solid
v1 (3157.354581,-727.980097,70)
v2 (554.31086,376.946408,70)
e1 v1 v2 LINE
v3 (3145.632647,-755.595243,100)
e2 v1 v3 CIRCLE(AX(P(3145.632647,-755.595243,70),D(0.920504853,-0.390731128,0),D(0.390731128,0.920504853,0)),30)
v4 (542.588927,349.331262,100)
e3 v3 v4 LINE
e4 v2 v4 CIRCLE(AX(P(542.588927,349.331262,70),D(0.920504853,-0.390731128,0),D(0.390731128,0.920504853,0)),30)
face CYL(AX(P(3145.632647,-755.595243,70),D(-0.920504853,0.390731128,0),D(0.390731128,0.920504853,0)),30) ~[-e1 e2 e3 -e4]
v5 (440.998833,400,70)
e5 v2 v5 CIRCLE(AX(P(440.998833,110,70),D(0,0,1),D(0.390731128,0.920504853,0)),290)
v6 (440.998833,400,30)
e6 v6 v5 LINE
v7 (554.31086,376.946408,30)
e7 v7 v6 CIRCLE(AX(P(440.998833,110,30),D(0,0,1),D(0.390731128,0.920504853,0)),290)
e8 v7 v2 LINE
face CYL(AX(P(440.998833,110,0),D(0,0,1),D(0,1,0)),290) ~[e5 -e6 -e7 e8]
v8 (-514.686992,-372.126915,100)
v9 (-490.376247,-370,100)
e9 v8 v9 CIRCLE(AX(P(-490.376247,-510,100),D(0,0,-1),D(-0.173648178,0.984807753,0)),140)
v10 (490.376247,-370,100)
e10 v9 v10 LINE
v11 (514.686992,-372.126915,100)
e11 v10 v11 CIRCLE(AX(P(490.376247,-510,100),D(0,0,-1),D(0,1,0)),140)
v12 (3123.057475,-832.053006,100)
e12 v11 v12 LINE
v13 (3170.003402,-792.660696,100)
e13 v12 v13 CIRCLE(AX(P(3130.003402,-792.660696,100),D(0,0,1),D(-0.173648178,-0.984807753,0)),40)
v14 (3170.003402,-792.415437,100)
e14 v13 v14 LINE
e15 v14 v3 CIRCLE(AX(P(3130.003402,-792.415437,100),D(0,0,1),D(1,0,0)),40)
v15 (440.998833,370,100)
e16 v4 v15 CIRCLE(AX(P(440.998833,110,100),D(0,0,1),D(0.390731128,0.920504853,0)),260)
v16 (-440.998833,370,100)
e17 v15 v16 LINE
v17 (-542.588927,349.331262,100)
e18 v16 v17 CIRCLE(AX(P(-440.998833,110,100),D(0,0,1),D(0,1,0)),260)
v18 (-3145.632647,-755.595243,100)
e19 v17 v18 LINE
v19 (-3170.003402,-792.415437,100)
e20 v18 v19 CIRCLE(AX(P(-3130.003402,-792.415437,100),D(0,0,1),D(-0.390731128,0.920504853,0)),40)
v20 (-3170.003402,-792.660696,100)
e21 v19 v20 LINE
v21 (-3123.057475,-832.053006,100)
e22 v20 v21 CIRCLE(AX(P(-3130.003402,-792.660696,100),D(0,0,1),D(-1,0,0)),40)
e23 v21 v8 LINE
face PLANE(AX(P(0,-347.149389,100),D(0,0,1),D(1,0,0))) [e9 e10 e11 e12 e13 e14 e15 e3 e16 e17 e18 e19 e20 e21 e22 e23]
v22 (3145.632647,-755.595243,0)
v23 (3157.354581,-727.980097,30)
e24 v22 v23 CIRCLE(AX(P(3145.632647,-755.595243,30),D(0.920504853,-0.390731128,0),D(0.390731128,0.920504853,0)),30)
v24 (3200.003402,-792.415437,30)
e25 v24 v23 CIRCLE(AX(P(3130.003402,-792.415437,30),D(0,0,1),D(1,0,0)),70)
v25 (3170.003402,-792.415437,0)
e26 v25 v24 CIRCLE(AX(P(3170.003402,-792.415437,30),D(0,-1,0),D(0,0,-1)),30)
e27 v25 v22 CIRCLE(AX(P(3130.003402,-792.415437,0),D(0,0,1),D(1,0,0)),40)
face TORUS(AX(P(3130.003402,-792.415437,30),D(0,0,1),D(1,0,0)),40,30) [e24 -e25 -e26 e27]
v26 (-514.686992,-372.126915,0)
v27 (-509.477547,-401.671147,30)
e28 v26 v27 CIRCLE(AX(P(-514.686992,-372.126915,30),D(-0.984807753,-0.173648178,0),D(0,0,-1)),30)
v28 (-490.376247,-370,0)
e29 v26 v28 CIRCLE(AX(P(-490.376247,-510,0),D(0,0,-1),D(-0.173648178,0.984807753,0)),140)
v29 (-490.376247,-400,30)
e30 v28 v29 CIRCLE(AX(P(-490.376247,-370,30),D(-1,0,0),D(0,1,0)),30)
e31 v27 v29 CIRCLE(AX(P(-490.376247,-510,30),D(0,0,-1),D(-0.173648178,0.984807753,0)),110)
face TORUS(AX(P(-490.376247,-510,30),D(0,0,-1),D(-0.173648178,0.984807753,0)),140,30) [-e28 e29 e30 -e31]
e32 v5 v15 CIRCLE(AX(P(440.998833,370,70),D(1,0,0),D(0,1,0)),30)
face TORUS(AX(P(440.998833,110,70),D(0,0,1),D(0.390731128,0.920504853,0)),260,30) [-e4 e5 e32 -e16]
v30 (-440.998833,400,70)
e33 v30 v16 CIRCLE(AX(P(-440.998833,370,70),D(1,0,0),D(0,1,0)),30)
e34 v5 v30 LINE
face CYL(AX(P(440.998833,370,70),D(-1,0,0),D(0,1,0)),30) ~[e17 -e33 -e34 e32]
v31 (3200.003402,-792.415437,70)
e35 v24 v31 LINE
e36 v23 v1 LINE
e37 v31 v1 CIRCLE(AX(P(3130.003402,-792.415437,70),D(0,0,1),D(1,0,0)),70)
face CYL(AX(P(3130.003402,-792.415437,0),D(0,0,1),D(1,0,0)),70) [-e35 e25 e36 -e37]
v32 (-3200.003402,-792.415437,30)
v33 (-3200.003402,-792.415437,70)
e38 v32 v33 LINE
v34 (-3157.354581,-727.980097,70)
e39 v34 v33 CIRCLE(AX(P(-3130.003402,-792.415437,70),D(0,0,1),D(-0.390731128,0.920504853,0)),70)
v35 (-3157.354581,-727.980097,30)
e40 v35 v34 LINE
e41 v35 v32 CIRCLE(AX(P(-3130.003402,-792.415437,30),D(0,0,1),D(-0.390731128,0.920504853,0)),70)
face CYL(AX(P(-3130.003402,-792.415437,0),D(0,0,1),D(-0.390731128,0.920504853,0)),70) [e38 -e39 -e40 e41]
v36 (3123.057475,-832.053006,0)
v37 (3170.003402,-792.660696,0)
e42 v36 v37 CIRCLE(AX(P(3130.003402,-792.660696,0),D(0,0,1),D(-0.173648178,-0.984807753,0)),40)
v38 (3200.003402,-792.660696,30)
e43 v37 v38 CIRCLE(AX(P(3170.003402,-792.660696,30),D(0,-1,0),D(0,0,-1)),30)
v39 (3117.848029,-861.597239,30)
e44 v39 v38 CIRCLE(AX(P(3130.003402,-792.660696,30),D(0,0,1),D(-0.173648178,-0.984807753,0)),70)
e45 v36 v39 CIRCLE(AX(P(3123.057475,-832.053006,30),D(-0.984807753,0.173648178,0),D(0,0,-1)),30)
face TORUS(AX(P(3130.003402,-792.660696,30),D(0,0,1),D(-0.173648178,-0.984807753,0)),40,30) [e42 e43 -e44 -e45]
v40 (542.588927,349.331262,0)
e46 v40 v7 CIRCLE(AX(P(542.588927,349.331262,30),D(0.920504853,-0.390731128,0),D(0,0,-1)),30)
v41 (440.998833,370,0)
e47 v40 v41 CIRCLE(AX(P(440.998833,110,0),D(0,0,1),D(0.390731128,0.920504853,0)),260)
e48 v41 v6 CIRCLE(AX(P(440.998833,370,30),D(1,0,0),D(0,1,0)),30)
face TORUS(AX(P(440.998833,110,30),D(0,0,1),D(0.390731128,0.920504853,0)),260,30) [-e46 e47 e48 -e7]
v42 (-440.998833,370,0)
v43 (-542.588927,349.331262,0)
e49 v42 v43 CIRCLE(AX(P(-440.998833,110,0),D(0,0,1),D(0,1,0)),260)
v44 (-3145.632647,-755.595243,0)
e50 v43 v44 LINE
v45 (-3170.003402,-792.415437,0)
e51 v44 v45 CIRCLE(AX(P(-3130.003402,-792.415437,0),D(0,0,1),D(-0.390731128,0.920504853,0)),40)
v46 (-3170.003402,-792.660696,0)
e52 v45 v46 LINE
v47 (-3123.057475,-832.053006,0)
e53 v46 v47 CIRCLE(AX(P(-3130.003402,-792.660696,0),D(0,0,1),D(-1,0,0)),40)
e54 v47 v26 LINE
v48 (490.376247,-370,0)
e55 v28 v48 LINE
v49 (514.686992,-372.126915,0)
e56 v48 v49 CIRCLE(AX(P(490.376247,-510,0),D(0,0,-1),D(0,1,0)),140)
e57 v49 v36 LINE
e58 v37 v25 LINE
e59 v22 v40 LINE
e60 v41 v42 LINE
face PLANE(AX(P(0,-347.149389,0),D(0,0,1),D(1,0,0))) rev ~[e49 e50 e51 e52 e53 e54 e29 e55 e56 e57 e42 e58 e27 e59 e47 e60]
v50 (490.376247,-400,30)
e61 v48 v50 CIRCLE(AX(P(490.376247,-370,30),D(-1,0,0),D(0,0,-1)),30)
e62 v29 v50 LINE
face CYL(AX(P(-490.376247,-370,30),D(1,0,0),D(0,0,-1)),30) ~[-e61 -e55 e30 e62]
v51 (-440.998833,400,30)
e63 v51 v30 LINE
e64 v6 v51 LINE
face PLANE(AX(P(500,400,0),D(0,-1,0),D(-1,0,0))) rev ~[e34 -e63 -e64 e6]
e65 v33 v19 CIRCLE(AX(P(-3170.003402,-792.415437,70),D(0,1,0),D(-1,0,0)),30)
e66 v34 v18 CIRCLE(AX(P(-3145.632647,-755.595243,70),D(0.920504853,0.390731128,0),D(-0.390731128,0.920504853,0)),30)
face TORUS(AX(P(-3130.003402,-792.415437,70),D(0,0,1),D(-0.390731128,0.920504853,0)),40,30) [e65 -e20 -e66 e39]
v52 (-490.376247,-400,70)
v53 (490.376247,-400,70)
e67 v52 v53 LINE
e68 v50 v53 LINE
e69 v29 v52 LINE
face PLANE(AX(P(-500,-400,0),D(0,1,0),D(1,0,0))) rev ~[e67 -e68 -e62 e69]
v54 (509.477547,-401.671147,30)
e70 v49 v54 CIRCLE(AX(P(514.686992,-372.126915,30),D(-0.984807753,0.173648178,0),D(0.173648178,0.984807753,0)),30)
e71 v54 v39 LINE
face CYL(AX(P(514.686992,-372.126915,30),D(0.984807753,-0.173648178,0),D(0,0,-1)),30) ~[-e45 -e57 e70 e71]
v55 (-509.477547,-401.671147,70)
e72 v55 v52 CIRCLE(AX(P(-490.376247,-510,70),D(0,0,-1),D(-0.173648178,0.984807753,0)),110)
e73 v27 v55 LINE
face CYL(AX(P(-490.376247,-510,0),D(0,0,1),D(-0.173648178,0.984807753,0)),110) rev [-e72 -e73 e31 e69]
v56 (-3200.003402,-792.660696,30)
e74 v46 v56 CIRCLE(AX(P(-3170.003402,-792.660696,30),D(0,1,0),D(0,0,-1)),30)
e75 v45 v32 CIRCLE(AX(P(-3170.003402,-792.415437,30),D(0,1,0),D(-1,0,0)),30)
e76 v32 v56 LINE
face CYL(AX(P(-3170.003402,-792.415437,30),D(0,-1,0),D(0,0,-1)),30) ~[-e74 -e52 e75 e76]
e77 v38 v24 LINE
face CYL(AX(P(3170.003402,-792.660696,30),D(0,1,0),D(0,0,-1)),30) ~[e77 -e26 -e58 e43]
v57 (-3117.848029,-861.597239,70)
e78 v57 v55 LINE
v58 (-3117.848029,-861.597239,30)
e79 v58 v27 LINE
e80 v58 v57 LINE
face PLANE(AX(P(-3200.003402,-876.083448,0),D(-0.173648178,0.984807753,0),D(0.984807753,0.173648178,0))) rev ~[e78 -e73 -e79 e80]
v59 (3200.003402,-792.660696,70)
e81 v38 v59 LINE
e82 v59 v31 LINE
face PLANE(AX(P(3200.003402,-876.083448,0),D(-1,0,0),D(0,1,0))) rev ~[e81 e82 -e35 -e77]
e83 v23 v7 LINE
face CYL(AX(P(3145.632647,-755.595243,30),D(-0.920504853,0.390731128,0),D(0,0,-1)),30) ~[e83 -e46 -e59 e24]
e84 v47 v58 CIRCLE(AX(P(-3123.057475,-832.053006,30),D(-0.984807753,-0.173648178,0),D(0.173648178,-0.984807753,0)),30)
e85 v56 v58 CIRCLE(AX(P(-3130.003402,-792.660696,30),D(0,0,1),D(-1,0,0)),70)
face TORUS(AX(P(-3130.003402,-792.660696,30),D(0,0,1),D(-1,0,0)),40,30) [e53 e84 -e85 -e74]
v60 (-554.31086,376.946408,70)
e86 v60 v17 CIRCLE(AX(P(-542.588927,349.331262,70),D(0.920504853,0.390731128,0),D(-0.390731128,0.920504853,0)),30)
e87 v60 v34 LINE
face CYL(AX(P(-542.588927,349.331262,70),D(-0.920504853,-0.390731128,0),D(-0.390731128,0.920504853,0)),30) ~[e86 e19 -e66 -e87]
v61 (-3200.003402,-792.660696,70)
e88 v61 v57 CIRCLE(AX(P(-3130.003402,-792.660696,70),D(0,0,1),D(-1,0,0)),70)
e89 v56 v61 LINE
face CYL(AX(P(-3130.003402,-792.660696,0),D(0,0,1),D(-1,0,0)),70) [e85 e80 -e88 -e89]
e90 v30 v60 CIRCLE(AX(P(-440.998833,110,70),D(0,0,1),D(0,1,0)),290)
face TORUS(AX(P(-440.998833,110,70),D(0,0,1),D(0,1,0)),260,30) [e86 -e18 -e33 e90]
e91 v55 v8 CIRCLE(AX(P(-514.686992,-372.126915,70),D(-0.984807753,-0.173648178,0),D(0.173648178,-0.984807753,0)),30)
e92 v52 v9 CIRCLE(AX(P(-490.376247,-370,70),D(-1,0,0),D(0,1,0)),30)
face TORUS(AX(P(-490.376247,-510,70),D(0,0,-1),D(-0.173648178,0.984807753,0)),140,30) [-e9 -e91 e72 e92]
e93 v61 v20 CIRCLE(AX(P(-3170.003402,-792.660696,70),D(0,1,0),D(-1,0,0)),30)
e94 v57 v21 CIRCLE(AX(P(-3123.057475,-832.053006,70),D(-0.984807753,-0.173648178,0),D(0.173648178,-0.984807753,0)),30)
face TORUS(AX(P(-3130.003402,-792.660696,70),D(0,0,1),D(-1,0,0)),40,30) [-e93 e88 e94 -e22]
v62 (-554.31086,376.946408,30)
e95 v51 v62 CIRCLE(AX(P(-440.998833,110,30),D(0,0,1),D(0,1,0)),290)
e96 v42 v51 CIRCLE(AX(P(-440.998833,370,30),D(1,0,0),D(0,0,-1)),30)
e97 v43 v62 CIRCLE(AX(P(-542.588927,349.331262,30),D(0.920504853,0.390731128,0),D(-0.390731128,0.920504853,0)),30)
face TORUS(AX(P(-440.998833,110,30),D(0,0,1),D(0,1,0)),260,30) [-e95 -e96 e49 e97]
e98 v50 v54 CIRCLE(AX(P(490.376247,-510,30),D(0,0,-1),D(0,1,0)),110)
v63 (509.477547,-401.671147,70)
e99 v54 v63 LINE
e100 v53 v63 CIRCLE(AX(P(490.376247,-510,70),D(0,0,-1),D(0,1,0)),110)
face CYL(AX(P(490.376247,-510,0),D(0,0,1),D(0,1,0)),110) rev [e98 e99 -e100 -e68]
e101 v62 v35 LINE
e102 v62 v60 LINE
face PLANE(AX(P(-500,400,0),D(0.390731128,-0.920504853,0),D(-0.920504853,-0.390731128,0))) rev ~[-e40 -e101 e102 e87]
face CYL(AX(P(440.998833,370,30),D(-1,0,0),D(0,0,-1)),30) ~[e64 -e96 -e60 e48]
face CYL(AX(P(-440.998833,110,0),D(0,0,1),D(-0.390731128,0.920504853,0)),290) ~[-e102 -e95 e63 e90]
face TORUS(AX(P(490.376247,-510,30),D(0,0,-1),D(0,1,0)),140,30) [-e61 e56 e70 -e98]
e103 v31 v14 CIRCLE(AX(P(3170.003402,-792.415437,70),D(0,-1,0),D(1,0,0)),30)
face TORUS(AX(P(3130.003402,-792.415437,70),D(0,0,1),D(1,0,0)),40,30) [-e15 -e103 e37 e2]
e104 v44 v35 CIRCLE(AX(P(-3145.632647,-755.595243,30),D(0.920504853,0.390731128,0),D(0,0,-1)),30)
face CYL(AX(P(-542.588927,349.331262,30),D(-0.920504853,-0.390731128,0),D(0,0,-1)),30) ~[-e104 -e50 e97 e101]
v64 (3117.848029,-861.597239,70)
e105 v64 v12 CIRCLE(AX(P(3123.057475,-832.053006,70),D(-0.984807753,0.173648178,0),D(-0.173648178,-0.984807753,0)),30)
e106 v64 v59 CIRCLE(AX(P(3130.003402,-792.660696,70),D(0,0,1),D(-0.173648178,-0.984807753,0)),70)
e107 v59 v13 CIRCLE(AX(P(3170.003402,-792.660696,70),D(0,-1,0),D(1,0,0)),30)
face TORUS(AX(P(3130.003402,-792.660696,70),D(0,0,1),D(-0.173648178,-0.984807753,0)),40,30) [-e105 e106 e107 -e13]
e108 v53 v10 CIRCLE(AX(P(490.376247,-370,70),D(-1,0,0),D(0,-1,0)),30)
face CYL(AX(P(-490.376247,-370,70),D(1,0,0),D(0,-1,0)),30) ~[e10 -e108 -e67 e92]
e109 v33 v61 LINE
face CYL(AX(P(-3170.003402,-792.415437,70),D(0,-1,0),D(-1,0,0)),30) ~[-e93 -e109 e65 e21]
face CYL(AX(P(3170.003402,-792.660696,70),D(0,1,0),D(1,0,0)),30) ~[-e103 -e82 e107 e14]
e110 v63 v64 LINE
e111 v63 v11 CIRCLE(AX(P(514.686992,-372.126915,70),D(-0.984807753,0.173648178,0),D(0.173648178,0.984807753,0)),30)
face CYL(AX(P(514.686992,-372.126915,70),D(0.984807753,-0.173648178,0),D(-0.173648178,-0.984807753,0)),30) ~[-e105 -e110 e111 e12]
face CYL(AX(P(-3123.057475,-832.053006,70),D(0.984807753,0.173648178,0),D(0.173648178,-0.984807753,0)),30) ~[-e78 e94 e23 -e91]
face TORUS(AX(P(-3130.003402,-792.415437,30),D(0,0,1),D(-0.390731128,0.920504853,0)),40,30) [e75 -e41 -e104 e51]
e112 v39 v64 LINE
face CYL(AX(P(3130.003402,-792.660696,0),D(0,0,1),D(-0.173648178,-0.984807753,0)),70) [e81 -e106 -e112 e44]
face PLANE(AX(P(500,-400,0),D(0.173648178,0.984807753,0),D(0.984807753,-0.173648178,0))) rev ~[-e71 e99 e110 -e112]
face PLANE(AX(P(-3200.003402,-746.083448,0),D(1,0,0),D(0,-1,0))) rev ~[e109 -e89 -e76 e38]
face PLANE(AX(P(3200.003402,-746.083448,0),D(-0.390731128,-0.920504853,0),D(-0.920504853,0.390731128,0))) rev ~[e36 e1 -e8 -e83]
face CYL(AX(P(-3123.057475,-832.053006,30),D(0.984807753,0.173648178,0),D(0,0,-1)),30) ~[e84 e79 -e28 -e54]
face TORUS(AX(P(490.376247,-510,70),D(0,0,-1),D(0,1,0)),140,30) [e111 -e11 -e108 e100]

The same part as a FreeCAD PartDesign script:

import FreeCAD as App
import Part
import Sketcher
from FreeCAD import Vector
Q = App.Units.Quantity


def edges_at(feature, points):
    """Names of the edges that pass closest to the given points."""
    edges = feature.Shape.Edges
    near = lambda p: min(range(len(edges)), key=lambda i: edges[i].distToShape(Part.Vertex(*p))[0])
    return sorted({f"Edge{near(p) + 1}" for p in points})

doc = App.newDocument("Part")
body = doc.addObject("PartDesign::Body", "Body")

# Sketch on XY plane
sketch1 = body.newObject("Sketcher::SketchObject", "Sketch")
sketch1.AttachmentSupport = (doc.getObject("XY_Plane"), [""])
sketch1.MapMode = "FlatFace"
sketch1.addGeometry([
    Part.LineSegment(Vector(-500, 400, 0), Vector(-3200, -746, 0)),  # 0
    Part.LineSegment(Vector(-3200, -746, 0), Vector(-3200, -876, 0)),  # 1
    Part.LineSegment(Vector(-3200, -876, 0), Vector(-500, -400, 0)),  # 2
    Part.LineSegment(Vector(-500, -400, 0), Vector(500, -400, 0)),  # 3
    Part.LineSegment(Vector(500, -400, 0), Vector(3200, -876, 0)),  # 4
    Part.LineSegment(Vector(3200, -876, 0), Vector(3200, -746, 0)),  # 5
    Part.LineSegment(Vector(3200, -746, 0), Vector(500, 400, 0)),  # 6
    Part.LineSegment(Vector(500, 400, 0), Vector(-500, 400, 0)),  # 7
], False)
sketch1.addConstraint([
    Sketcher.Constraint("Coincident", 0, 2, 1, 1),
    Sketcher.Constraint("Coincident", 1, 2, 2, 1),
    Sketcher.Constraint("Coincident", 2, 2, 3, 1),
    Sketcher.Constraint("Coincident", 3, 2, 4, 1),
    Sketcher.Constraint("Coincident", 4, 2, 5, 1),
    Sketcher.Constraint("Coincident", 5, 2, 6, 1),
    Sketcher.Constraint("Coincident", 6, 2, 7, 1),
    Sketcher.Constraint("Coincident", 7, 2, 0, 1),
    Sketcher.Constraint("Vertical", 1),
    Sketcher.Constraint("Horizontal", 3),
    Sketcher.Constraint("Vertical", 5),
    Sketcher.Constraint("Horizontal", 7),
    Sketcher.Constraint("Symmetric", 2, 2, 6, 2, -1, 1),
    Sketcher.Constraint("Symmetric", 1, 2, 4, 2, -2),
    Sketcher.Constraint("Horizontal", 0, 2, 5, 2),
    Sketcher.Constraint("Vertical", 3, 2, 6, 2),
    Sketcher.Constraint("Vertical", 2, 2, 7, 2),
    Sketcher.Constraint("DistanceX", 3, 1, 3, 2, 1000.0),
    Sketcher.Constraint("DistanceY", 1, 2, 1, 1, 130.0),
    Sketcher.Constraint("Angle", 0, Q("-157 deg")),
    Sketcher.Constraint("Angle", 2, Q("10 deg")),
    Sketcher.Constraint("DistanceY", 2, 2, -1, 1, 400.0),
])
pad1 = body.newObject("PartDesign::Pad", "Pad")
pad1.Profile = sketch1
pad1.Length = 100
doc.recompute()

fillet = body.newObject("PartDesign::Fillet", "Fillet")
fillet.Base = (pad1, edges_at(pad1, [
    (3200.003, -746.083, 50),
    (3200.003, -876.083, 50),
    (-3200.003, -876.083, 50),
    (-3200.003, -746.083, 50),
]))
fillet.Radius = 70
doc.recompute()

fillet2 = body.newObject("PartDesign::Fillet", "Fillet001")
fillet2.Base = (fillet, edges_at(fillet, [(500, -400, 50), (-500, -400, 50)]))
fillet2.Radius = 110
doc.recompute()

fillet3 = body.newObject("PartDesign::Fillet", "Fillet002")
fillet3.Base = (fillet2, edges_at(fillet2, [(-500, 400, 50), (500, 400, 50)]))
fillet3.Radius = 290
doc.recompute()

fillet4 = body.newObject("PartDesign::Fillet", "Fillet003")
fillet4.Base = (fillet3, edges_at(fillet3, [
    (3200.003, -792.538, 100),
    (1855.833, -175.517, 100),
    (-3200.003, -792.538, 100),
    (-1813.663, -631.634, 100),
    (-3188.375, -753.78, 100),
    (-3174.999, -846.284, 100),
    (3188.375, -753.78, 100),
    (3174.999, -846.284, 100),
    (0, -400, 100),
    (1813.663, -631.634, 100),
    (-499.963, -400.419, 100),
    (499.963, -400.419, 100),
    (-1855.833, -175.517, 100),
    (0, 400, 100),
    (498.816, 394.178, 100),
    (-498.816, 394.178, 100),
]))
fillet4.Radius = 30
doc.recompute()

fillet5 = body.newObject("PartDesign::Fillet", "Fillet004")
fillet5.Base = (fillet4, edges_at(fillet4, [
    (3200.003, -792.538, 0),
    (1855.833, -175.517, 0),
    (-1813.663, -631.634, 0),
    (-3200.003, -792.538, 0),
    (-3188.375, -753.78, 0),
    (-3174.999, -846.284, 0),
    (3188.375, -753.78, 0),
    (3174.999, -846.284, 0),
    (0, -400, 0),
    (1813.663, -631.634, 0),
    (-499.963, -400.419, 0),
    (499.963, -400.419, 0),
    (-1855.833, -175.517, 0),
    (0, 400, 0),
    (498.816, 394.178, 0),
    (-498.816, 394.178, 0),
]))
fillet5.Radius = 30

doc.recompute()
